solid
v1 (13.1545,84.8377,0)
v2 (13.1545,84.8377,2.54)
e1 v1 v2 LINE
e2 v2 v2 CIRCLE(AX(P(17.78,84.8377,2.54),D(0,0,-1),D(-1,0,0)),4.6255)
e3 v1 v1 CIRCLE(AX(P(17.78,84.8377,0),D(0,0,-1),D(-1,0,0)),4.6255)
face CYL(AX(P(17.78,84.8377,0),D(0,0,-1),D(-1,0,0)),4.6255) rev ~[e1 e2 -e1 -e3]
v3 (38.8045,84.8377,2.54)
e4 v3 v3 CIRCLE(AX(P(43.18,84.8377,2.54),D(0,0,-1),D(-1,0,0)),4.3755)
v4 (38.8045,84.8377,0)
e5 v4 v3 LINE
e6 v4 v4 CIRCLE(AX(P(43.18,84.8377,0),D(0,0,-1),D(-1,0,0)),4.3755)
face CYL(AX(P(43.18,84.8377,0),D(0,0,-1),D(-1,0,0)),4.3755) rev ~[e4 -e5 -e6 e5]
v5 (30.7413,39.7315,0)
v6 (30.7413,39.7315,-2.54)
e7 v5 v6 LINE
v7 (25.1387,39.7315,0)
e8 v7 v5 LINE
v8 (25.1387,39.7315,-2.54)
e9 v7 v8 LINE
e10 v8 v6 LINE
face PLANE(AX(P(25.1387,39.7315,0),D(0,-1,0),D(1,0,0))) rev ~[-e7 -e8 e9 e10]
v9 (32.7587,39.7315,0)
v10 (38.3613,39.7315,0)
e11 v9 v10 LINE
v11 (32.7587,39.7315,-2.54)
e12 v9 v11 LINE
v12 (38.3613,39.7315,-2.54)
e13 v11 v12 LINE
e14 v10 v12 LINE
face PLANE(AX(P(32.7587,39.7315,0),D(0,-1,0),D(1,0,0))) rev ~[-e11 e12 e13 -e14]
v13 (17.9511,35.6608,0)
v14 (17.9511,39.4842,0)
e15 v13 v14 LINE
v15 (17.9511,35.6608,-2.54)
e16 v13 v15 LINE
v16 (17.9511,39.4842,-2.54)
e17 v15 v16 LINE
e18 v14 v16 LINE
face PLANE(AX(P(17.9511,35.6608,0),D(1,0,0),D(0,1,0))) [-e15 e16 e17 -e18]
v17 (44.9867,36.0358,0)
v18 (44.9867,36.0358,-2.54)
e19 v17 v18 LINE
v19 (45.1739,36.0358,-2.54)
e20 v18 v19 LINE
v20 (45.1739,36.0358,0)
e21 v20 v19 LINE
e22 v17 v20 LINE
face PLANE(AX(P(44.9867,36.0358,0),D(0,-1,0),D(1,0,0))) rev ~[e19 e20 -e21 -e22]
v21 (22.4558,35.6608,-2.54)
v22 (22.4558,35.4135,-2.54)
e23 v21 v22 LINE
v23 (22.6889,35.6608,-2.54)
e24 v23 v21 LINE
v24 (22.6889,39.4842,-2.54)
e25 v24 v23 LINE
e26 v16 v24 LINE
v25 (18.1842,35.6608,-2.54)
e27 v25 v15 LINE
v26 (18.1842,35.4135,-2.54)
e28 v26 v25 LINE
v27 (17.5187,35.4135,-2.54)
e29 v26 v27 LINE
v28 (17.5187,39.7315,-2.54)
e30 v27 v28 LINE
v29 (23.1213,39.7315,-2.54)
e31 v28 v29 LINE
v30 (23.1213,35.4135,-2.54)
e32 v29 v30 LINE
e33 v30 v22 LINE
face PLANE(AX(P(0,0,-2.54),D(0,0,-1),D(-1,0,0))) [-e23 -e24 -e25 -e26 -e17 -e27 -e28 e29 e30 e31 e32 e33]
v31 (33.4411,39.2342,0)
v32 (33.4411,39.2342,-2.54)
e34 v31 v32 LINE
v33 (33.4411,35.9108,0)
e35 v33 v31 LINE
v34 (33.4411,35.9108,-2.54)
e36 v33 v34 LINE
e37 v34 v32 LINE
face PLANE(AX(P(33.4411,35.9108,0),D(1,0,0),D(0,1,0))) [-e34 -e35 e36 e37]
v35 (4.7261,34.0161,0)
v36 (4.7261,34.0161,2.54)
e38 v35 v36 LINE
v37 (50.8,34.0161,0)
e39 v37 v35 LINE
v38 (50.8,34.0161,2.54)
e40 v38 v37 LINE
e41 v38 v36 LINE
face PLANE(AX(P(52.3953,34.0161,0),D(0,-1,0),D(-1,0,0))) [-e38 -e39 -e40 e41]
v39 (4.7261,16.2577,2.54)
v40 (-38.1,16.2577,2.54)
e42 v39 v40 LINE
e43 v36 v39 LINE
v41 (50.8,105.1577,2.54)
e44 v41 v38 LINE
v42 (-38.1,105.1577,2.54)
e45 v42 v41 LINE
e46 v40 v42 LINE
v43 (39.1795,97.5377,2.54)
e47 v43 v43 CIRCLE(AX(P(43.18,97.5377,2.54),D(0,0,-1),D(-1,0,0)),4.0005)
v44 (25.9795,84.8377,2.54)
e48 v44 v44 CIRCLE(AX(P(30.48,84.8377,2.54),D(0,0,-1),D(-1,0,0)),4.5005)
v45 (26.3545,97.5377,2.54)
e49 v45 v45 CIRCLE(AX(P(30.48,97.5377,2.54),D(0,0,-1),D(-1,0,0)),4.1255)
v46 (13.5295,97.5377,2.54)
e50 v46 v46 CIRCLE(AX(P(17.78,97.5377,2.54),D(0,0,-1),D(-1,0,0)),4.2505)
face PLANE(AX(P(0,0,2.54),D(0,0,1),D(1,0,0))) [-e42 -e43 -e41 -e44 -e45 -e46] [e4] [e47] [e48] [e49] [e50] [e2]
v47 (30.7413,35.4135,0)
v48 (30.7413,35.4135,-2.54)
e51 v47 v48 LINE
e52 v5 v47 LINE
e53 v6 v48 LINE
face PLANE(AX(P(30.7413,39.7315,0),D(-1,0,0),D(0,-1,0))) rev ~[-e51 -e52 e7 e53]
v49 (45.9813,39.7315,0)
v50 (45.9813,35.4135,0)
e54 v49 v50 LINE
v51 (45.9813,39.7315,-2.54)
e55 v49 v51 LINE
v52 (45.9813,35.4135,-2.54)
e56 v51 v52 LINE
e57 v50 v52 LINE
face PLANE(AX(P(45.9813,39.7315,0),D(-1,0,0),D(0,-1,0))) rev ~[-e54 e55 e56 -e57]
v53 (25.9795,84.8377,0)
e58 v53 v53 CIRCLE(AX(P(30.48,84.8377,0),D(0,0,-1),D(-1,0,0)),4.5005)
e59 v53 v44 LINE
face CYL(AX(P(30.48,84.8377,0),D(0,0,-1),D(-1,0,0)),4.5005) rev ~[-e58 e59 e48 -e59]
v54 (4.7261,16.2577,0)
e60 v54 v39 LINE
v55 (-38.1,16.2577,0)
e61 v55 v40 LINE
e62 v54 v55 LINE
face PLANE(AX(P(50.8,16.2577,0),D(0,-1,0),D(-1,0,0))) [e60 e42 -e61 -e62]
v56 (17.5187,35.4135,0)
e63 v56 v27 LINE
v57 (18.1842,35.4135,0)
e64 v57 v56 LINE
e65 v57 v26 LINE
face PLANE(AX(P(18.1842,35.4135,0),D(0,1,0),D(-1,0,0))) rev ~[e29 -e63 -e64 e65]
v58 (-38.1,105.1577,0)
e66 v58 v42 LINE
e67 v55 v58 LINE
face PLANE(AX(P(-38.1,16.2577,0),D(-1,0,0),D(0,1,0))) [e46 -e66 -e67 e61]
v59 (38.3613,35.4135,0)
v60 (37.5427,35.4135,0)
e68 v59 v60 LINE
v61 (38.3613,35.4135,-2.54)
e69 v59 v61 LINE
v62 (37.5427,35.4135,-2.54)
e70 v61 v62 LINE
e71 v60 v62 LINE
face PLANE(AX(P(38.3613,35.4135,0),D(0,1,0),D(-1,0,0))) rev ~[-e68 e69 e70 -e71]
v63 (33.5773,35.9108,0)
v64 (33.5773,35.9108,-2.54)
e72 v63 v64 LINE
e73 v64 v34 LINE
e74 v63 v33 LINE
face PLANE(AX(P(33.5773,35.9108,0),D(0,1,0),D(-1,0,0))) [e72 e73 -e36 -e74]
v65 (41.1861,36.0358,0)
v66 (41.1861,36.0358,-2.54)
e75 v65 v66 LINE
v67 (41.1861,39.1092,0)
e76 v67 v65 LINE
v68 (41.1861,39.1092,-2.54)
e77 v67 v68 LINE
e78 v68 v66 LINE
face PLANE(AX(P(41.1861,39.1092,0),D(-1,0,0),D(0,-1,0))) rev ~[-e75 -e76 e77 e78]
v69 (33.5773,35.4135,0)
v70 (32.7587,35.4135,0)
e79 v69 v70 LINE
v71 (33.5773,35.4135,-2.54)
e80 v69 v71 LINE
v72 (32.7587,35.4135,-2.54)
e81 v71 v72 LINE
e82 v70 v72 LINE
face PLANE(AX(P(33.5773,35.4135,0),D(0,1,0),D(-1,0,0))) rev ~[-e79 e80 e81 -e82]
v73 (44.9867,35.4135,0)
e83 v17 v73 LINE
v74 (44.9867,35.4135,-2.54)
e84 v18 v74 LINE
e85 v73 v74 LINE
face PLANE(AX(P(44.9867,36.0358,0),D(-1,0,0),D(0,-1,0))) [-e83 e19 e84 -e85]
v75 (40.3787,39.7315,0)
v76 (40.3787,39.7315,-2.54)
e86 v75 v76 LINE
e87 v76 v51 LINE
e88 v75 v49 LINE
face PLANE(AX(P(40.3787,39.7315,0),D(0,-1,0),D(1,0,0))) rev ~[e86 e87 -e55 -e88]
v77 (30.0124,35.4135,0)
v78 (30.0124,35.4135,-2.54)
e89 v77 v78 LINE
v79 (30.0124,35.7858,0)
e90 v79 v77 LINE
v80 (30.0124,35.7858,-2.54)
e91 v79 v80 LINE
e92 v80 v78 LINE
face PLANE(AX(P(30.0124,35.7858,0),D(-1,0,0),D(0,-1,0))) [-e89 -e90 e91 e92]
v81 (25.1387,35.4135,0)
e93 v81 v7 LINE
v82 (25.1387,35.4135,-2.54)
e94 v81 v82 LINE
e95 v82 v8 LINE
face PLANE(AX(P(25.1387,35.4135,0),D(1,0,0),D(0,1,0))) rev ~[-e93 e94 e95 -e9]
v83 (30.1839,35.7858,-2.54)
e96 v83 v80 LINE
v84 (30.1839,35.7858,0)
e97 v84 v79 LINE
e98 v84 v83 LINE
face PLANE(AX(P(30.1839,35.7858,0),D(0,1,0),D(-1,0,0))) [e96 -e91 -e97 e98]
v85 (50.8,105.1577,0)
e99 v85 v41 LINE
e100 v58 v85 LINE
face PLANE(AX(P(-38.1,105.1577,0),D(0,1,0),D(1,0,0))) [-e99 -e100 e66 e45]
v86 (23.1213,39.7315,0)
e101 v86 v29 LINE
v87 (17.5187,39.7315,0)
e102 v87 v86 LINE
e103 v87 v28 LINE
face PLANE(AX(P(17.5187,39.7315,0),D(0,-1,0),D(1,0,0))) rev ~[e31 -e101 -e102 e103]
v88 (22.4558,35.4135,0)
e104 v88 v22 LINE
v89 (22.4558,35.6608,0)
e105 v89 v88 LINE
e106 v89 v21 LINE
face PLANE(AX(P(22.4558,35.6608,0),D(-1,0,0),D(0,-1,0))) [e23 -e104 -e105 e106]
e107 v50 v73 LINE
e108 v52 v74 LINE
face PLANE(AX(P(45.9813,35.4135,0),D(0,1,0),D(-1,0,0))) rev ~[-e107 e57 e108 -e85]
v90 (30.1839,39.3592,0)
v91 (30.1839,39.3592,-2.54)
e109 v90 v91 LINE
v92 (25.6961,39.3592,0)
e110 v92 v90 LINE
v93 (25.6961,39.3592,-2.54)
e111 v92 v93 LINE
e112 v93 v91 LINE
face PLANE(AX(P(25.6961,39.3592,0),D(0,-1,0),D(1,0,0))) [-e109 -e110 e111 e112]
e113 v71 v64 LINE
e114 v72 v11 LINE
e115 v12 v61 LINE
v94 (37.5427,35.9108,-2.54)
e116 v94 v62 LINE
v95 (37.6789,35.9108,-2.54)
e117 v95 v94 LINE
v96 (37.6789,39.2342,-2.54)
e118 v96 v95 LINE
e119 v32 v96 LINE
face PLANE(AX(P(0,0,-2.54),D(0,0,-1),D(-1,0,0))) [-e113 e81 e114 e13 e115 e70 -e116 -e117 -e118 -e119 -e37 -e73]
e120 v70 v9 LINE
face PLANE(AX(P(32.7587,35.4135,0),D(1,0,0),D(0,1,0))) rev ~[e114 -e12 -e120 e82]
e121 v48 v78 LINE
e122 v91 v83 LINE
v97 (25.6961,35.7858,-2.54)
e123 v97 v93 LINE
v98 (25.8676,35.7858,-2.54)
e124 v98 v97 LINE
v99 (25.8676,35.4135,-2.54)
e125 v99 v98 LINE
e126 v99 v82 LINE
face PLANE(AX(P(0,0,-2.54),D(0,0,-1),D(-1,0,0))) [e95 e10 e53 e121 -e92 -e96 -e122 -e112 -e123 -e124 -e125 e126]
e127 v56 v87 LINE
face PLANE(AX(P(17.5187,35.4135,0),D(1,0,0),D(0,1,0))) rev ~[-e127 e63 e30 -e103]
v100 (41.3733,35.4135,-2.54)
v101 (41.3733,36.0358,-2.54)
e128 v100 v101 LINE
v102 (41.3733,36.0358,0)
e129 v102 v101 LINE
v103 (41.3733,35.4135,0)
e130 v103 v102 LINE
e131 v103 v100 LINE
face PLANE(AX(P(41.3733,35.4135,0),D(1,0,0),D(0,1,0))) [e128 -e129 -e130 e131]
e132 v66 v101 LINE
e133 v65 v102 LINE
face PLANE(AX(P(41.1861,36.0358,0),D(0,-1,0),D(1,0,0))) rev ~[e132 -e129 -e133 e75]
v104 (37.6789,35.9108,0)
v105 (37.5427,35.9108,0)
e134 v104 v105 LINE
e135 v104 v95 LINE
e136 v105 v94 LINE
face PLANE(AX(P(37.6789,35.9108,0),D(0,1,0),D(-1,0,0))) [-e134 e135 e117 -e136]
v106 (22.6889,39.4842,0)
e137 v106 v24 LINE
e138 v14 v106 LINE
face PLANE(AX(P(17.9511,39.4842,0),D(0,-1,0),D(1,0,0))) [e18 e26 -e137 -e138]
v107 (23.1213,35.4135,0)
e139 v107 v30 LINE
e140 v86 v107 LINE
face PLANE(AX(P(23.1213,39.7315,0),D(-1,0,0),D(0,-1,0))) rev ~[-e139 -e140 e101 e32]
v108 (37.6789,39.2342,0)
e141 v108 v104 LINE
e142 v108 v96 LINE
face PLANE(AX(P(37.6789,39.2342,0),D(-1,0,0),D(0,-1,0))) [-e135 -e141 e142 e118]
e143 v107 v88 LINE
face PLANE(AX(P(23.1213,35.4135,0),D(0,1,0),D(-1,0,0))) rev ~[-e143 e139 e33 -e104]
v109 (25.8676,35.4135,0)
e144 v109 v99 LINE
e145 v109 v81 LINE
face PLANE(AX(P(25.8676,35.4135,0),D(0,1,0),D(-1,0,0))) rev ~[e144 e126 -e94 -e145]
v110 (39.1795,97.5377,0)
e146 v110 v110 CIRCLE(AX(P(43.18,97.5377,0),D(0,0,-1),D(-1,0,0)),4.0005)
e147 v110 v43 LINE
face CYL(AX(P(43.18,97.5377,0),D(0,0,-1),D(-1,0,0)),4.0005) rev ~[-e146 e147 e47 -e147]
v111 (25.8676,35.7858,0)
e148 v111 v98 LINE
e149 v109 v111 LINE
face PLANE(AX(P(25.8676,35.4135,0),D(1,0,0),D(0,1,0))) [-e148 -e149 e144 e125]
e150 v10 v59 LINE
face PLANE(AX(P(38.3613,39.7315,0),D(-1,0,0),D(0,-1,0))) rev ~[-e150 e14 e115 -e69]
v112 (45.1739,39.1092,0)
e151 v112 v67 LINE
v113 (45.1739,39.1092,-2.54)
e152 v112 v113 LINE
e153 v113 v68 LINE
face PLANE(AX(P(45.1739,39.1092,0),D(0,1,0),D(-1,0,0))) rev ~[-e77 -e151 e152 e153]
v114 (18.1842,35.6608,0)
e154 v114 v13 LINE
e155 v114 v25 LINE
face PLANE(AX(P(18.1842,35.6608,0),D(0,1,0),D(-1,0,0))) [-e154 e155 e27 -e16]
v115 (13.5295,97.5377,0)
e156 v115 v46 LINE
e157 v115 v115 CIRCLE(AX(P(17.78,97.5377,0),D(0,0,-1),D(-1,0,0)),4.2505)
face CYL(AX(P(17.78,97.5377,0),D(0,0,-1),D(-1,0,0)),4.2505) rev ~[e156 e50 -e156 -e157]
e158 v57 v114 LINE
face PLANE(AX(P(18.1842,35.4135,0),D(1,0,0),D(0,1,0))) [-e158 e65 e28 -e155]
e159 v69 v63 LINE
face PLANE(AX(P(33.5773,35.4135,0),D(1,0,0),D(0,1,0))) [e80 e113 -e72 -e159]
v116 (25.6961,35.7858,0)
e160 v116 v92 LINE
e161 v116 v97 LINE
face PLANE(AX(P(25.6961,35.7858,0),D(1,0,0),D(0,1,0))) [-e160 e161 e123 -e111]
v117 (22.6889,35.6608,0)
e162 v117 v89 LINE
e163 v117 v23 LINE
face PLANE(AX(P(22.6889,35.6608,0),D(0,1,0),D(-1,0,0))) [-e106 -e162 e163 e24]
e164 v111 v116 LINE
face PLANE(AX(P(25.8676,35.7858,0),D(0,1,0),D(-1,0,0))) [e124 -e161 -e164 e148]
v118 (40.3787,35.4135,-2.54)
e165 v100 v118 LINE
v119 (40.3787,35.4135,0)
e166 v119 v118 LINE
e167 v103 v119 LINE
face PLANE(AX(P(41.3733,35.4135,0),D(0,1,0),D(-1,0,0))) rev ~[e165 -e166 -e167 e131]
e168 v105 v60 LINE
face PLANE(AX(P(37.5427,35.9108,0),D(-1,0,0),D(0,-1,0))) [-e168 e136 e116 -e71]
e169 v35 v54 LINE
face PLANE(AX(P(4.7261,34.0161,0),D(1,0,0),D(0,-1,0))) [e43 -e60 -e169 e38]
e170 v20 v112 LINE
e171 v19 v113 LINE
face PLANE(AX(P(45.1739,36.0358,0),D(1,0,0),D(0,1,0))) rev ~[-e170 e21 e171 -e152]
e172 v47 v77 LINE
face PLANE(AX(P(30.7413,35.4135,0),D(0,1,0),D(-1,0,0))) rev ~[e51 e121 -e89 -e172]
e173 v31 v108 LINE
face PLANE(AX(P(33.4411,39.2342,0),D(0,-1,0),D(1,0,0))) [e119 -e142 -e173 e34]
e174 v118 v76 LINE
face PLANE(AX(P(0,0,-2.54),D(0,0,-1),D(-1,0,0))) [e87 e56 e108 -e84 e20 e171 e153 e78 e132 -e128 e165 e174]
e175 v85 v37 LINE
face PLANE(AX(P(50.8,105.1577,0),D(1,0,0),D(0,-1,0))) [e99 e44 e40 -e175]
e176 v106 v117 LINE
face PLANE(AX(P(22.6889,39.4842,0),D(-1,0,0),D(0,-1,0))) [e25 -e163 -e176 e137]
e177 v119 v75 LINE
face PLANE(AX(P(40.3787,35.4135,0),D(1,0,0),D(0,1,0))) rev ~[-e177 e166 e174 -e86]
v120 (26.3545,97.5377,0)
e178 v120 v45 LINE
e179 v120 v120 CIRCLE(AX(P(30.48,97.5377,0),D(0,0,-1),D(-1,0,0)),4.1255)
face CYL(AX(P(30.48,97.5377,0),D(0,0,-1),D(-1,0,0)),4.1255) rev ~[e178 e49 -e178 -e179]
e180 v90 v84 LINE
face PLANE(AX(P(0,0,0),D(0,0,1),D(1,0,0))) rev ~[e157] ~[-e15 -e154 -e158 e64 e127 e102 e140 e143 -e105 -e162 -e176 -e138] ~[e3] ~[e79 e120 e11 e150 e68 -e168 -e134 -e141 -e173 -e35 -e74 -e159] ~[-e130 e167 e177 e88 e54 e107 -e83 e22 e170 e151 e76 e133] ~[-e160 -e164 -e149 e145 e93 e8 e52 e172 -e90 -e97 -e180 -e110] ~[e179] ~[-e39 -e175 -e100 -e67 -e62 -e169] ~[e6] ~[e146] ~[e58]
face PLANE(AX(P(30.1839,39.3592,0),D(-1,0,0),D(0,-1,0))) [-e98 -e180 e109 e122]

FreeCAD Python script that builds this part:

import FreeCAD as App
import Part
import Sketcher
from FreeCAD import Vector
Q = App.Units.Quantity

doc = App.newDocument("Part")
params = doc.addObject("Spreadsheet::Sheet", "Params")
for row, (alias, value) in enumerate([
    ("sketch1_width", "3.5 in"),
    ("pad1_length", "0.1 in"),
    ("sketch2_diameter", "0.315 in"),
    ("pocket1_length", "9.001 mm"),
    ("sketch3_height", "0.121 in"),
    ("sketch3_height2", "0.17 in"),
    ("sketch3_width", "0.157 in"),
    ("pad2_length", "0.1 in"),
    ("pocket2_length", "0.1 in"),
], start=1):
    params.set(f"A{row}", alias)
    params.set(f"B{row}", "=" + value)
    params.setAlias(f"B{row}", alias)

body = doc.addObject("PartDesign::Body", "Body")

sketch1 = doc.addObject("Sketcher::SketchObject", "Sketch")
body.addObject(sketch1)
sketch1.AttachmentSupport = (doc.XY_Plane, [""])
sketch1.MapMode = "FlatFace"
sketch1.addGeometry(Part.LineSegment(Vector(50.8, 105.1577, 0), Vector(-38.1, 105.1577, 0)), False)
sketch1.addGeometry(Part.LineSegment(Vector(-38.1, 105.1577, 0), Vector(-38.1, 16.2577, 0)), False)
sketch1.addGeometry(Part.LineSegment(Vector(-38.1, 16.2577, 0), Vector(50.8, 16.2577, 0)), False)
sketch1.addGeometry(Part.LineSegment(Vector(50.8, 16.2577, 0), Vector(50.8, 105.1577, 0)), False)
sketch1.addConstraint(Sketcher.Constraint("Coincident", 0, 2, 1, 1))
sketch1.addConstraint(Sketcher.Constraint("Coincident", 1, 2, 2, 1))
sketch1.addConstraint(Sketcher.Constraint("Coincident", 2, 2, 3, 1))
sketch1.addConstraint(Sketcher.Constraint("Coincident", 3, 2, 0, 1))
sketch1.addConstraint(Sketcher.Constraint("Horizontal", 0))
sketch1.addConstraint(Sketcher.Constraint("Vertical", 1))
sketch1.addConstraint(Sketcher.Constraint("Horizontal", 2))
sketch1.addConstraint(Sketcher.Constraint("Vertical", 3))
sketch1.addConstraint(Sketcher.Constraint("Equal", 2, 1))
sketch1.addConstraint(Sketcher.Constraint("DistanceX", 0, 2, 0, 1, Q("3.5 in")))
sketch1.addConstraint(Sketcher.Constraint("DistanceX", -1, 1, 2, 2, Q("2 in")))
sketch1.addConstraint(Sketcher.Constraint("DistanceY", -1, 1, 0, 2, 105.1577))
sketch1.setExpression("Constraints[9]", "Params.sketch1_width")
pad1 = doc.addObject("PartDesign::Pad", "Pad")
body.addObject(pad1)
pad1.Profile = sketch1
pad1.setExpression("Length", "Params.pad1_length")

sketch2 = doc.addObject("Sketcher::SketchObject", "Sketch001")
body.addObject(sketch2)
sketch2.AttachmentSupport = (doc.XY_Plane, [""])
sketch2.MapMode = "FlatFace"
sketch2.addGeometry(Part.Circle(Vector(43.18, 97.5377, 0), Vector(0, 0, 1), 4.0005), False)
sketch2.addGeometry(Part.Circle(Vector(30.48, 97.5377, 0), Vector(0, 0, 1), 4.1255), False)
sketch2.addGeometry(Part.Circle(Vector(17.78, 97.5377, 0), Vector(0, 0, 1), 4.2505), False)
sketch2.addGeometry(Part.Circle(Vector(43.18, 84.8377, 0), Vector(0, 0, 1), 4.3755), False)
sketch2.addGeometry(Part.Circle(Vector(30.48, 84.8377, 0), Vector(0, 0, 1), 4.5005), False)
sketch2.addGeometry(Part.Circle(Vector(17.78, 84.8377, 0), Vector(0, 0, 1), 4.6255), False)
sketch2.addConstraint(Sketcher.Constraint("Horizontal", 0, 3, 1, 3))
sketch2.addConstraint(Sketcher.Constraint("Horizontal", 1, 3, 2, 3))
sketch2.addConstraint(Sketcher.Constraint("Horizontal", 3, 3, 4, 3))
sketch2.addConstraint(Sketcher.Constraint("Horizontal", 4, 3, 5, 3))
sketch2.addConstraint(Sketcher.Constraint("Vertical", 0, 3, 3, 3))
sketch2.addConstraint(Sketcher.Constraint("Vertical", 1, 3, 4, 3))
sketch2.addConstraint(Sketcher.Constraint("Vertical", 2, 3, 5, 3))
sketch2.addConstraint(Sketcher.Constraint("Diameter", 0, Q("0.315 in")))
sketch2.addConstraint(Sketcher.Constraint("DistanceX", 2, 3, 0, 3, Q("1 in")))
sketch2.addConstraint(Sketcher.Constraint("DistanceX", 1, 3, 0, 3, Q("0.5 in")))
sketch2.addConstraint(Sketcher.Constraint("DistanceY", 3, 3, 0, 3, Q("0.5 in")))
sketch2.addConstraint(Sketcher.Constraint("Diameter", 1, 8.251))
sketch2.addConstraint(Sketcher.Constraint("Diameter", 2, 8.501))
sketch2.addConstraint(Sketcher.Constraint("Diameter", 3, 8.751))
sketch2.addConstraint(Sketcher.Constraint("Diameter", 4, 9.001))
sketch2.addConstraint(Sketcher.Constraint("Diameter", 5, 9.251))
sketch2.addConstraint(Sketcher.Constraint("DistanceX", -1, 1, 0, 3, Q("1.7 in")))
sketch2.addConstraint(Sketcher.Constraint("DistanceY", -1, 1, 0, 3, 97.5377))
sketch2.setExpression("Constraints[7]", "Params.sketch2_diameter")
pocket1 = doc.addObject("PartDesign::Pocket", "Pocket")
body.addObject(pocket1)
pocket1.Profile = sketch2
pocket1.setExpression("Length", "Params.pocket1_length")
pocket1.Reversed = True

sketch3 = doc.addObject("Sketcher::SketchObject", "Sketch002")
body.addObject(sketch3)
sketch3.AttachmentSupport = (doc.XY_Plane, [""])
sketch3.MapMode = "FlatFace"
sketch3.addGeometry(Part.LineSegment(Vector(45.1739, 36.0358, 0), Vector(45.1739, 39.1092, 0)), False)
sketch3.addGeometry(Part.LineSegment(Vector(45.1739, 39.1092, 0), Vector(41.1861, 39.1092, 0)), False)
sketch3.addGeometry(Part.LineSegment(Vector(41.1861, 39.1092, 0), Vector(41.1861, 36.0358, 0)), False)
sketch3.addGeometry(Part.LineSegment(Vector(41.1861, 36.0358, 0), Vector(41.3733, 36.0358, 0)), False)
sketch3.addGeometry(Part.LineSegment(Vector(41.3733, 36.0358, 0), Vector(41.3733, 35.4135, 0)), False)
sketch3.addGeometry(Part.LineSegment(Vector(41.3733, 35.4135, 0), Vector(40.3787, 35.4135, 0)), False)
sketch3.addGeometry(Part.LineSegment(Vector(40.3787, 35.4135, 0), Vector(40.3787, 39.7315, 0)), False)
sketch3.addGeometry(Part.LineSegment(Vector(40.3787, 39.7315, 0), Vector(45.9813, 39.7315, 0)), False)
sketch3.addGeometry(Part.LineSegment(Vector(45.9813, 39.7315, 0), Vector(45.9813, 35.4135, 0)), False)
sketch3.addGeometry(Part.LineSegment(Vector(45.9813, 35.4135, 0), Vector(44.9867, 35.4135, 0)), False)
sketch3.addGeometry(Part.LineSegment(Vector(44.9867, 35.4135, 0), Vector(44.9867, 36.0358, 0)), False)
sketch3.addGeometry(Part.LineSegment(Vector(44.9867, 36.0358, 0), Vector(45.1739, 36.0358, 0)), False)
sketch3.addGeometry(Part.LineSegment(Vector(32.7587, 35.4135, 0), Vector(32.7587, 39.7315, 0)), False)
sketch3.addGeometry(Part.LineSegment(Vector(32.7587, 39.7315, 0), Vector(38.3613, 39.7315, 0)), False)
sketch3.addGeometry(Part.LineSegment(Vector(38.3613, 39.7315, 0), Vector(38.3613, 35.4135, 0)), False)
sketch3.addGeometry(Part.LineSegment(Vector(38.3613, 35.4135, 0), Vector(37.5427, 35.4135, 0)), False)
sketch3.addGeometry(Part.LineSegment(Vector(37.5427, 35.4135, 0), Vector(37.5427, 35.9108, 0)), False)
sketch3.addGeometry(Part.LineSegment(Vector(37.5427, 35.9108, 0), Vector(37.6789, 35.9108, 0)), False)
sketch3.addGeometry(Part.LineSegment(Vector(37.6789, 35.9108, 0), Vector(37.6789, 39.2342, 0)), False)
sketch3.addGeometry(Part.LineSegment(Vector(37.6789, 39.2342, 0), Vector(33.4411, 39.2342, 0)), False)
sketch3.addGeometry(Part.LineSegment(Vector(33.4411, 39.2342, 0), Vector(33.4411, 35.9108, 0)), False)
sketch3.addGeometry(Part.LineSegment(Vector(33.4411, 35.9108, 0), Vector(33.5773, 35.9108, 0)), False)
sketch3.addGeometry(Part.LineSegment(Vector(33.5773, 35.9108, 0), Vector(33.5773, 35.4135, 0)), False)
sketch3.addGeometry(Part.LineSegment(Vector(33.5773, 35.4135, 0), Vector(32.7587, 35.4135, 0)), False)
sketch3.addGeometry(Part.LineSegment(Vector(25.1387, 35.4135, 0), Vector(25.1387, 39.7315, 0)), False)
sketch3.addGeometry(Part.LineSegment(Vector(25.1387, 39.7315, 0), Vector(30.7413, 39.7315, 0)), False)
sketch3.addGeometry(Part.LineSegment(Vector(30.7413, 39.7315, 0), Vector(30.7413, 35.4135, 0)), False)
sketch3.addGeometry(Part.LineSegment(Vector(30.7413, 35.4135, 0), Vector(30.0124, 35.4135, 0)), False)
sketch3.addGeometry(Part.LineSegment(Vector(30.0124, 35.4135, 0), Vector(30.0124, 35.7858, 0)), False)
sketch3.addGeometry(Part.LineSegment(Vector(30.0124, 35.7858, 0), Vector(30.1839, 35.7858, 0)), False)
sketch3.addGeometry(Part.LineSegment(Vector(30.1839, 35.7858, 0), Vector(30.1839, 39.3592, 0)), False)
sketch3.addGeometry(Part.LineSegment(Vector(30.1839, 39.3592, 0), Vector(25.6961, 39.3592, 0)), False)
sketch3.addGeometry(Part.LineSegment(Vector(25.6961, 39.3592, 0), Vector(25.6961, 35.7858, 0)), False)
sketch3.addGeometry(Part.LineSegment(Vector(25.6961, 35.7858, 0), Vector(25.8676, 35.7858, 0)), False)
sketch3.addGeometry(Part.LineSegment(Vector(25.8676, 35.7858, 0), Vector(25.8676, 35.4135, 0)), False)
sketch3.addGeometry(Part.LineSegment(Vector(25.8676, 35.4135, 0), Vector(25.1387, 35.4135, 0)), False)
sketch3.addGeometry(Part.LineSegment(Vector(17.5187, 35.4135, 0), Vector(17.5187, 39.7315, 0)), False)
sketch3.addGeometry(Part.LineSegment(Vector(17.5187, 39.7315, 0), Vector(23.1213, 39.7315, 0)), False)
sketch3.addGeometry(Part.LineSegment(Vector(23.1213, 39.7315, 0), Vector(23.1213, 35.4135, 0)), False)
sketch3.addGeometry(Part.LineSegment(Vector(23.1213, 35.4135, 0), Vector(22.4558, 35.4135, 0)), False)
sketch3.addGeometry(Part.LineSegment(Vector(22.4558, 35.4135, 0), Vector(22.4558, 35.6608, 0)), False)
sketch3.addGeometry(Part.LineSegment(Vector(22.4558, 35.6608, 0), Vector(22.6889, 35.6608, 0)), False)
sketch3.addGeometry(Part.LineSegment(Vector(22.6889, 35.6608, 0), Vector(22.6889, 39.4842, 0)), False)
sketch3.addGeometry(Part.LineSegment(Vector(22.6889, 39.4842, 0), Vector(17.9511, 39.4842, 0)), False)
sketch3.addGeometry(Part.LineSegment(Vector(17.9511, 39.4842, 0), Vector(17.9511, 35.6608, 0)), False)
sketch3.addGeometry(Part.LineSegment(Vector(17.9511, 35.6608, 0), Vector(18.1842, 35.6608, 0)), False)
sketch3.addGeometry(Part.LineSegment(Vector(18.1842, 35.6608, 0), Vector(18.1842, 35.4135, 0)), False)
sketch3.addGeometry(Part.LineSegment(Vector(18.1842, 35.4135, 0), Vector(17.5187, 35.4135, 0)), False)
sketch3.addConstraint(Sketcher.Constraint("Coincident", 0, 2, 1, 1))
sketch3.addConstraint(Sketcher.Constraint("Coincident", 1, 2, 2, 1))
sketch3.addConstraint(Sketcher.Constraint("Coincident", 2, 2, 3, 1))
sketch3.addConstraint(Sketcher.Constraint("Coincident", 3, 2, 4, 1))
sketch3.addConstraint(Sketcher.Constraint("Coincident", 4, 2, 5, 1))
sketch3.addConstraint(Sketcher.Constraint("Coincident", 5, 2, 6, 1))
sketch3.addConstraint(Sketcher.Constraint("Coincident", 6, 2, 7, 1))
sketch3.addConstraint(Sketcher.Constraint("Coincident", 7, 2, 8, 1))
sketch3.addConstraint(Sketcher.Constraint("Coincident", 8, 2, 9, 1))
sketch3.addConstraint(Sketcher.Constraint("Coincident", 9, 2, 10, 1))
sketch3.addConstraint(Sketcher.Constraint("Coincident", 10, 2, 11, 1))
sketch3.addConstraint(Sketcher.Constraint("Coincident", 11, 2, 0, 1))
sketch3.addConstraint(Sketcher.Constraint("Coincident", 12, 2, 13, 1))
sketch3.addConstraint(Sketcher.Constraint("Coincident", 13, 2, 14, 1))
sketch3.addConstraint(Sketcher.Constraint("Coincident", 14, 2, 15, 1))
sketch3.addConstraint(Sketcher.Constraint("Coincident", 15, 2, 16, 1))
sketch3.addConstraint(Sketcher.Constraint("Coincident", 16, 2, 17, 1))
sketch3.addConstraint(Sketcher.Constraint("Coincident", 17, 2, 18, 1))
sketch3.addConstraint(Sketcher.Constraint("Coincident", 18, 2, 19, 1))
sketch3.addConstraint(Sketcher.Constraint("Coincident", 19, 2, 20, 1))
sketch3.addConstraint(Sketcher.Constraint("Coincident", 20, 2, 21, 1))
sketch3.addConstraint(Sketcher.Constraint("Coincident", 21, 2, 22, 1))
sketch3.addConstraint(Sketcher.Constraint("Coincident", 22, 2, 23, 1))
sketch3.addConstraint(Sketcher.Constraint("Coincident", 23, 2, 12, 1))
sketch3.addConstraint(Sketcher.Constraint("Coincident", 24, 2, 25, 1))
sketch3.addConstraint(Sketcher.Constraint("Coincident", 25, 2, 26, 1))
sketch3.addConstraint(Sketcher.Constraint("Coincident", 26, 2, 27, 1))
sketch3.addConstraint(Sketcher.Constraint("Coincident", 27, 2, 28, 1))
sketch3.addConstraint(Sketcher.Constraint("Coincident", 28, 2, 29, 1))
sketch3.addConstraint(Sketcher.Constraint("Coincident", 29, 2, 30, 1))
sketch3.addConstraint(Sketcher.Constraint("Coincident", 30, 2, 31, 1))
sketch3.addConstraint(Sketcher.Constraint("Coincident", 31, 2, 32, 1))
sketch3.addConstraint(Sketcher.Constraint("Coincident", 32, 2, 33, 1))
sketch3.addConstraint(Sketcher.Constraint("Coincident", 33, 2, 34, 1))
sketch3.addConstraint(Sketcher.Constraint("Coincident", 34, 2, 35, 1))
sketch3.addConstraint(Sketcher.Constraint("Coincident", 35, 2, 24, 1))
sketch3.addConstraint(Sketcher.Constraint("Coincident", 36, 2, 37, 1))
sketch3.addConstraint(Sketcher.Constraint("Coincident", 37, 2, 38, 1))
sketch3.addConstraint(Sketcher.Constraint("Coincident", 38, 2, 39, 1))
sketch3.addConstraint(Sketcher.Constraint("Coincident", 39, 2, 40, 1))
sketch3.addConstraint(Sketcher.Constraint("Coincident", 40, 2, 41, 1))
sketch3.addConstraint(Sketcher.Constraint("Coincident", 41, 2, 42, 1))
sketch3.addConstraint(Sketcher.Constraint("Coincident", 42, 2, 43, 1))
sketch3.addConstraint(Sketcher.Constraint("Coincident", 43, 2, 44, 1))
sketch3.addConstraint(Sketcher.Constraint("Coincident", 44, 2, 45, 1))
sketch3.addConstraint(Sketcher.Constraint("Coincident", 45, 2, 46, 1))
sketch3.addConstraint(Sketcher.Constraint("Coincident", 46, 2, 47, 1))
sketch3.addConstraint(Sketcher.Constraint("Coincident", 47, 2, 36, 1))
sketch3.addConstraint(Sketcher.Constraint("Vertical", 0))
sketch3.addConstraint(Sketcher.Constraint("Horizontal", 1))
sketch3.addConstraint(Sketcher.Constraint("Vertical", 2))
sketch3.addConstraint(Sketcher.Constraint("Horizontal", 3))
sketch3.addConstraint(Sketcher.Constraint("Vertical", 4))
sketch3.addConstraint(Sketcher.Constraint("Horizontal", 5))
sketch3.addConstraint(Sketcher.Constraint("Vertical", 6))
sketch3.addConstraint(Sketcher.Constraint("Horizontal", 7))
sketch3.addConstraint(Sketcher.Constraint("Vertical", 8))
sketch3.addConstraint(Sketcher.Constraint("Horizontal", 9))
sketch3.addConstraint(Sketcher.Constraint("Vertical", 10))
sketch3.addConstraint(Sketcher.Constraint("Horizontal", 11))
sketch3.addConstraint(Sketcher.Constraint("Vertical", 12))
sketch3.addConstraint(Sketcher.Constraint("Horizontal", 13))
sketch3.addConstraint(Sketcher.Constraint("Vertical", 14))
sketch3.addConstraint(Sketcher.Constraint("Horizontal", 15))
sketch3.addConstraint(Sketcher.Constraint("Vertical", 16))
sketch3.addConstraint(Sketcher.Constraint("Horizontal", 17))
sketch3.addConstraint(Sketcher.Constraint("Vertical", 18))
sketch3.addConstraint(Sketcher.Constraint("Horizontal", 19))
sketch3.addConstraint(Sketcher.Constraint("Vertical", 20))
sketch3.addConstraint(Sketcher.Constraint("Horizontal", 21))
sketch3.addConstraint(Sketcher.Constraint("Vertical", 22))
sketch3.addConstraint(Sketcher.Constraint("Horizontal", 23))
sketch3.addConstraint(Sketcher.Constraint("Vertical", 24))
sketch3.addConstraint(Sketcher.Constraint("Horizontal", 25))
sketch3.addConstraint(Sketcher.Constraint("Vertical", 26))
sketch3.addConstraint(Sketcher.Constraint("Horizontal", 27))
sketch3.addConstraint(Sketcher.Constraint("Vertical", 28))
sketch3.addConstraint(Sketcher.Constraint("Horizontal", 29))
sketch3.addConstraint(Sketcher.Constraint("Vertical", 30))
sketch3.addConstraint(Sketcher.Constraint("Horizontal", 31))
sketch3.addConstraint(Sketcher.Constraint("Vertical", 32))
sketch3.addConstraint(Sketcher.Constraint("Horizontal", 33))
sketch3.addConstraint(Sketcher.Constraint("Vertical", 34))
sketch3.addConstraint(Sketcher.Constraint("Horizontal", 35))
sketch3.addConstraint(Sketcher.Constraint("Vertical", 36))
sketch3.addConstraint(Sketcher.Constraint("Horizontal", 37))
sketch3.addConstraint(Sketcher.Constraint("Vertical", 38))
sketch3.addConstraint(Sketcher.Constraint("Horizontal", 39))
sketch3.addConstraint(Sketcher.Constraint("Vertical", 40))
sketch3.addConstraint(Sketcher.Constraint("Horizontal", 41))
sketch3.addConstraint(Sketcher.Constraint("Vertical", 42))
sketch3.addConstraint(Sketcher.Constraint("Horizontal", 43))
sketch3.addConstraint(Sketcher.Constraint("Vertical", 44))
sketch3.addConstraint(Sketcher.Constraint("Horizontal", 45))
sketch3.addConstraint(Sketcher.Constraint("Vertical", 46))
sketch3.addConstraint(Sketcher.Constraint("Horizontal", 47))
sketch3.addConstraint(Sketcher.Constraint("Horizontal", 5, 2, 8, 2))
sketch3.addConstraint(Sketcher.Constraint("Horizontal", 3, 2, 10, 2))
sketch3.addConstraint(Sketcher.Constraint("Horizontal", 7, 2, 12, 2))
sketch3.addConstraint(Sketcher.Constraint("Horizontal", 9, 2, 14, 2))
sketch3.addConstraint(Sketcher.Constraint("Horizontal", 17, 2, 20, 2))
sketch3.addConstraint(Sketcher.Constraint("Horizontal", 15, 2, 22, 2))
sketch3.addConstraint(Sketcher.Constraint("Horizontal", 13, 2, 24, 2))
sketch3.addConstraint(Sketcher.Constraint("Horizontal", 23, 2, 26, 2))
sketch3.addConstraint(Sketcher.Constraint("Horizontal", 29, 2, 32, 2))
sketch3.addConstraint(Sketcher.Constraint("Horizontal", 27, 2, 34, 2))
sketch3.addConstraint(Sketcher.Constraint("Horizontal", 25, 2, 36, 2))
sketch3.addConstraint(Sketcher.Constraint("Horizontal", 35, 2, 38, 2))
sketch3.addConstraint(Sketcher.Constraint("Horizontal", 41, 2, 44, 2))
sketch3.addConstraint(Sketcher.Constraint("Horizontal", 39, 2, 46, 2))
sketch3.addConstraint(Sketcher.Constraint("Equal", 5, 9))
sketch3.addConstraint(Sketcher.Constraint("Equal", 3, 11))
sketch3.addConstraint(Sketcher.Constraint("Equal", 7, 13))
sketch3.addConstraint(Sketcher.Constraint("Equal", 17, 21))
sketch3.addConstraint(Sketcher.Constraint("Equal", 15, 23))
sketch3.addConstraint(Sketcher.Constraint("Equal", 13, 25))
sketch3.addConstraint(Sketcher.Constraint("Equal", 29, 33))
sketch3.addConstraint(Sketcher.Constraint("Equal", 27, 35))
sketch3.addConstraint(Sketcher.Constraint("Equal", 25, 37))
sketch3.addConstraint(Sketcher.Constraint("Equal", 41, 45))
sketch3.addConstraint(Sketcher.Constraint("Equal", 39, 47))
sketch3.addConstraint(Sketcher.Constraint("DistanceX", 12, 2, 6, 2, Q("0.3 in")))
sketch3.addConstraint(Sketcher.Constraint("DistanceX", 24, 2, 12, 2, Q("0.3 in")))
sketch3.addConstraint(Sketcher.Constraint("DistanceX", 36, 2, 24, 2, Q("0.3 in")))
sketch3.addConstraint(Sketcher.Constraint("DistanceY", 0, 1, 0, 2, Q("0.121 in")))
sketch3.addConstraint(Sketcher.Constraint("DistanceX", 19, 2, 19, 1, 4.2378))
sketch3.addConstraint(Sketcher.Constraint("DistanceX", 31, 2, 31, 1, 4.4878))
sketch3.addConstraint(Sketcher.Constraint("DistanceX", 43, 2, 43, 1, 4.7378))
sketch3.addConstraint(Sketcher.Constraint("DistanceY", 6, 1, 6, 2, Q("0.17 in")))
sketch3.addConstraint(Sketcher.Constraint("DistanceY", 18, 1, 18, 2, 3.3234))
sketch3.addConstraint(Sketcher.Constraint("DistanceY", 30, 1, 30, 2, 3.5734))
sketch3.addConstraint(Sketcher.Constraint("DistanceX", 1, 2, 1, 1, Q("0.157 in")))
sketch3.addConstraint(Sketcher.Constraint("DistanceX", 27, 2, 27, 1, Q("0.0287 in")))
sketch3.addConstraint(Sketcher.Constraint("DistanceX", 39, 2, 39, 1, Q("0.0262 in")))
sketch3.addConstraint(Sketcher.Constraint("DistanceY", 4, 2, 4, 1, Q("0.0245 in")))
sketch3.addConstraint(Sketcher.Constraint("DistanceX", 27, 2, 20, 2, Q("0.135 in")))
sketch3.addConstraint(Sketcher.Constraint("DistanceX", 3, 1, 3, 2, 0.1872))
sketch3.addConstraint(Sketcher.Constraint("DistanceX", 15, 2, 15, 1, 0.8186))
sketch3.addConstraint(Sketcher.Constraint("DistanceY", 16, 1, 16, 2, 0.4973))
sketch3.addConstraint(Sketcher.Constraint("DistanceY", 28, 1, 28, 2, 0.3723))
sketch3.addConstraint(Sketcher.Constraint("DistanceY", 40, 1, 40, 2, 0.2473))
sketch3.addConstraint(Sketcher.Constraint("DistanceY", 42, 1, 42, 2, 3.8234))
sketch3.addConstraint(Sketcher.Constraint("DistanceX", -1, 1, 0, 2, Q("1.7785 in")))
sketch3.addConstraint(Sketcher.Constraint("DistanceY", -1, 1, 16, 2, Q("1.4138 in")))
sketch3.setExpression("Constraints[124]", "Params.sketch3_height")
sketch3.setExpression("Constraints[128]", "Params.sketch3_height2")
sketch3.setExpression("Constraints[131]", "Params.sketch3_width")
pad2 = doc.addObject("PartDesign::Pad", "Pad001")
body.addObject(pad2)
pad2.Profile = sketch3
pad2.setExpression("Length", "Params.pad2_length")
pad2.Reversed = True

sketch4 = doc.addObject("Sketcher::SketchObject", "Sketch003")
body.addObject(sketch4)
sketch4.AttachmentSupport = (doc.XY_Plane, [""])
sketch4.MapMode = "FlatFace"
sketch4.addGeometry(Part.LineSegment(Vector(4.7261, 34.0161, 0), Vector(52.3953, 34.0161, 0)), False)
sketch4.addGeometry(Part.LineSegment(Vector(52.3953, 34.0161, 0), Vector(52.3953, 12.2528, 0)), False)
sketch4.addGeometry(Part.LineSegment(Vector(52.3953, 12.2528, 0), Vector(4.7261, 12.2528, 0)), False)
sketch4.addGeometry(Part.LineSegment(Vector(4.7261, 12.2528, 0), Vector(4.7261, 34.0161, 0)), False)
sketch4.addConstraint(Sketcher.Constraint("Coincident", 0, 2, 1, 1))
sketch4.addConstraint(Sketcher.Constraint("Coincident", 1, 2, 2, 1))
sketch4.addConstraint(Sketcher.Constraint("Coincident", 2, 2, 3, 1))
sketch4.addConstraint(Sketcher.Constraint("Coincident", 3, 2, 0, 1))
sketch4.addConstraint(Sketcher.Constraint("Horizontal", 0))
sketch4.addConstraint(Sketcher.Constraint("Vertical", 1))
sketch4.addConstraint(Sketcher.Constraint("Horizontal", 2))
sketch4.addConstraint(Sketcher.Constraint("Vertical", 3))
sketch4.addConstraint(Sketcher.Constraint("DistanceX", 0, 1, 0, 2, 47.6692))
sketch4.addConstraint(Sketcher.Constraint("DistanceY", 1, 2, 1, 1, 21.7633))
sketch4.addConstraint(Sketcher.Constraint("DistanceX", -1, 1, 0, 2, Q("2.0628 in")))
sketch4.addConstraint(Sketcher.Constraint("DistanceY", -1, 1, 1, 2, Q("0.4824 in")))
pocket2 = doc.addObject("PartDesign::Pocket", "Pocket001")
body.addObject(pocket2)
pocket2.Profile = sketch4
pocket2.setExpression("Length", "Params.pocket2_length")
pocket2.Reversed = True

doc.recompute()
